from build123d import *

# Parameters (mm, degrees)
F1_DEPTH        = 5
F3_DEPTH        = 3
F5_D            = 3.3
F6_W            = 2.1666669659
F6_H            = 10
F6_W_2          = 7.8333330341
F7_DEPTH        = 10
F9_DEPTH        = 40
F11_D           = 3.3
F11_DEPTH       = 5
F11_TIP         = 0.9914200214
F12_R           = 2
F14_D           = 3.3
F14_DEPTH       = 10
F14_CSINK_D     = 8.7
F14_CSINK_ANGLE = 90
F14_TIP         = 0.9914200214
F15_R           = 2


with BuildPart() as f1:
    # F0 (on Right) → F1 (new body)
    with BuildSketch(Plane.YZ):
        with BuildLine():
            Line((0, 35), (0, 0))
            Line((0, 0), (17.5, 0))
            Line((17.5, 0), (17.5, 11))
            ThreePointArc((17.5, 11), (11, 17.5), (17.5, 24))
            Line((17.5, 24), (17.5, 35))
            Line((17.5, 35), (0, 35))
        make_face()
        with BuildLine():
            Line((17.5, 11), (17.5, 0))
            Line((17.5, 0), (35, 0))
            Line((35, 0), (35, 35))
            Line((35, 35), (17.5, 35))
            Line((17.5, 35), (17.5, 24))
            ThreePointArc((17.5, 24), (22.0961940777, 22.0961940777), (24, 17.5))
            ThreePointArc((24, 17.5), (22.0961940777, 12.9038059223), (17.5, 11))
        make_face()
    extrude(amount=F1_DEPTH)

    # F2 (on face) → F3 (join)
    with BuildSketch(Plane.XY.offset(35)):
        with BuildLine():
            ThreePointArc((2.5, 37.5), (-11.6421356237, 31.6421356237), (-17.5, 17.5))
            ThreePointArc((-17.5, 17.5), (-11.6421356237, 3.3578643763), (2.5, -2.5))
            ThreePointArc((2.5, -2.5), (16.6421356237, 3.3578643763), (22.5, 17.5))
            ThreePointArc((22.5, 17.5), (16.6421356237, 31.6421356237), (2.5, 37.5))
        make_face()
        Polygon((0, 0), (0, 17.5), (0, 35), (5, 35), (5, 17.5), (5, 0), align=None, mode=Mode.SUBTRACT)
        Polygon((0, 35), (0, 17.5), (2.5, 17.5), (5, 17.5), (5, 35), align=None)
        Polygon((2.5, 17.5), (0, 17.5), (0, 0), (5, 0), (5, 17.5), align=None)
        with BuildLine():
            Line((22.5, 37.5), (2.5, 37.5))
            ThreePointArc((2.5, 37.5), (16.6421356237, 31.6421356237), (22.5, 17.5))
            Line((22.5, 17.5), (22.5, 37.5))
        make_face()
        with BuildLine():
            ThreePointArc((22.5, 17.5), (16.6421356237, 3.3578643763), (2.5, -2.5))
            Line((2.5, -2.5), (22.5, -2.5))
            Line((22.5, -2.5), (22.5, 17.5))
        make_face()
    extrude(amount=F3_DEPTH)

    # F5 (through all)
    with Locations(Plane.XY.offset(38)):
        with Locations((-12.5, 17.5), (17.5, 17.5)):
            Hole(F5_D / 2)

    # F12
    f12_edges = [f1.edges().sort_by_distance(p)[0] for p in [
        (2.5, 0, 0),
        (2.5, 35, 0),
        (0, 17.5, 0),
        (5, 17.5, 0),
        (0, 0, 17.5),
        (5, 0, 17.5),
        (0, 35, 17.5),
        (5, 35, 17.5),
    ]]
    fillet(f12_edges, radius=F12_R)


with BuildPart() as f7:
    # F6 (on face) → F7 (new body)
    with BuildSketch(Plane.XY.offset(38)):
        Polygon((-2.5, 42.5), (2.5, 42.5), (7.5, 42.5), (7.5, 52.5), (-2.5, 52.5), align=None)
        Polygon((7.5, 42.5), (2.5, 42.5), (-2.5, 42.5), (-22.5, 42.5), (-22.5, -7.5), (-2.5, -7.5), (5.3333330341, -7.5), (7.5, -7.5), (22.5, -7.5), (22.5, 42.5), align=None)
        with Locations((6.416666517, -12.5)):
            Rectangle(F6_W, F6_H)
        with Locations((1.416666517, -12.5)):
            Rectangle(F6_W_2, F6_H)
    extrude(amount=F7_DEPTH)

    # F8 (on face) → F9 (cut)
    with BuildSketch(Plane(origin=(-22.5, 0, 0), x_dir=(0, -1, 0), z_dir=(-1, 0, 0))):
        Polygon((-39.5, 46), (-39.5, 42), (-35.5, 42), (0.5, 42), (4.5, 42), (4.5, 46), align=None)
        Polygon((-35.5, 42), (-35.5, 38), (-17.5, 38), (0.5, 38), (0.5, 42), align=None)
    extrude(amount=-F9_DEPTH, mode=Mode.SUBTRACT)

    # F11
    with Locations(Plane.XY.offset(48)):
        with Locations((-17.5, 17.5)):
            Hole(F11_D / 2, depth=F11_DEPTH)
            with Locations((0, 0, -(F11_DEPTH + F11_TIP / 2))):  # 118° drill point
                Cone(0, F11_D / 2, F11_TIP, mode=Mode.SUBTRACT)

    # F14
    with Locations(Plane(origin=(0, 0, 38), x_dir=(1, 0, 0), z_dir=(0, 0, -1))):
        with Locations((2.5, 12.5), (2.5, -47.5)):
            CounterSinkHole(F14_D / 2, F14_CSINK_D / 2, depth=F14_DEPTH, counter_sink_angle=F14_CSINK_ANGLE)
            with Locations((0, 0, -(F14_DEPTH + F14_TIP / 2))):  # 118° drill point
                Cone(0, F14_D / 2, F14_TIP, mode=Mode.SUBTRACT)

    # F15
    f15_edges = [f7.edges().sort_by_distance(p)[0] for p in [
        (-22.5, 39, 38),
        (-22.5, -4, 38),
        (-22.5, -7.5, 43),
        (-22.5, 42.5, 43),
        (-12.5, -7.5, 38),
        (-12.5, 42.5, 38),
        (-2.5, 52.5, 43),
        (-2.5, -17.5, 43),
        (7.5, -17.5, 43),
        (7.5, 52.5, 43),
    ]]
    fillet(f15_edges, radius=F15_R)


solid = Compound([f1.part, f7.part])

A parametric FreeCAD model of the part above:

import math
import FreeCAD as App
import Part
import Sketcher
Q = App.Units.Quantity


def edges_at(feature, points):
    """Names of the edges that pass closest to the given points."""
    edges = feature.Shape.Edges
    near = lambda p: min(range(len(edges)), key=lambda i: edges[i].distToShape(Part.Vertex(*p))[0])
    return sorted({f"Edge{near(p) + 1}" for p in points})

doc = App.newDocument("Part")
body = doc.addObject("PartDesign::Body", "Body")

# Sketch on YZ plane
sketch1 = body.newObject("Sketcher::SketchObject", "Sketch")
sketch1.AttachmentSupport = (doc.getObject("YZ_Plane"), [""])
sketch1.MapMode = "FlatFace"
sketch1.addGeometry(Part.LineSegment(App.Vector(0, 35, 0), App.Vector(0, 0, 0)), False)
sketch1.addGeometry(Part.LineSegment(App.Vector(0, 0, 0), App.Vector(35, 0, 0)), False)
sketch1.addGeometry(Part.LineSegment(App.Vector(35, 0, 0), App.Vector(35, 35, 0)), False)
sketch1.addGeometry(Part.LineSegment(App.Vector(35, 35, 0), App.Vector(0, 35, 0)), False)
sketch1.addGeometry(Part.ArcOfCircle(Part.Circle(App.Vector(18, 18, 0), App.Vector(0, 0, 1), 6), math.radians(90), math.radians(270)), False)
sketch1.addGeometry(Part.ArcOfCircle(Part.Circle(App.Vector(18, 18, 0), App.Vector(0, 0, 1), 6), math.radians(0), math.radians(90)), False)
sketch1.addGeometry(Part.ArcOfCircle(Part.Circle(App.Vector(18, 18, 0), App.Vector(0, 0, 1), 6), math.radians(-90), math.radians(0)), False)
sketch1.addConstraint(Sketcher.Constraint("Coincident", 0, 2, 1, 1))
sketch1.addConstraint(Sketcher.Constraint("Coincident", 1, 2, 2, 1))
sketch1.addConstraint(Sketcher.Constraint("Coincident", 2, 2, 3, 1))
sketch1.addConstraint(Sketcher.Constraint("Coincident", 3, 2, 0, 1))
sketch1.addConstraint(Sketcher.Constraint("Tangent", 4, 1, 5, 2))
sketch1.addConstraint(Sketcher.Constraint("Tangent", 5, 1, 6, 2))
sketch1.addConstraint(Sketcher.Constraint("Tangent", 6, 1, 4, 2))
sketch1.addConstraint(Sketcher.Constraint("Vertical", 0))
sketch1.addConstraint(Sketcher.Constraint("Horizontal", 1))
sketch1.addConstraint(Sketcher.Constraint("Vertical", 2))
sketch1.addConstraint(Sketcher.Constraint("Horizontal", 3))
sketch1.addConstraint(Sketcher.Constraint("Coincident", 0, 2, -1, 1))
sketch1.addConstraint(Sketcher.Constraint("Horizontal", 6, 3, 5, 1))
sketch1.addConstraint(Sketcher.Constraint("Vertical", 6, 3, 4, 1))
sketch1.addConstraint(Sketcher.Constraint("Vertical", 4, 1, 6, 1))
sketch1.addConstraint(Sketcher.Constraint("Equal", 3, 0))
sketch1.addConstraint(Sketcher.Constraint("Radius", 4, Q("6.5 mm")))
sketch1.addConstraint(Sketcher.Constraint("DistanceX", 1, 1, 1, 2, Q("35 mm")))
sketch1.addConstraint(Sketcher.Constraint("DistanceY", -1, 1, 4, 1, Q("24 mm")))
sketch1.addConstraint(Sketcher.Constraint("DistanceX", -1, 1, 5, 1, Q("24 mm")))
pad1 = body.newObject("PartDesign::Pad", "Pad")
pad1.Profile = sketch1
pad1.Length = 5

# Sketch on XY plane
sketch2 = body.newObject("Sketcher::SketchObject", "Sketch001")
sketch2.AttachmentSupport = (doc.getObject("XY_Plane"), [""])
sketch2.MapMode = "FlatFace"
sketch2.AttachmentOffset = App.Placement(App.Vector(0, 0, 35), App.Rotation())
sketch2.addGeometry(Part.ArcOfCircle(Part.Circle(App.Vector(2, 18, 0), App.Vector(0, 0, 1), 20), math.radians(90), math.radians(180)), False)
sketch2.addGeometry(Part.ArcOfCircle(Part.Circle(App.Vector(2, 18, 0), App.Vector(0, 0, 1), 20), math.radians(180), math.radians(270)), False)
sketch2.addGeometry(Part.LineSegment(App.Vector(2, -2, 0), App.Vector(22, -2, 0)), False)
sketch2.addGeometry(Part.LineSegment(App.Vector(22, -2, 0), App.Vector(22, 38, 0)), False)
sketch2.addGeometry(Part.LineSegment(App.Vector(22, 38, 0), App.Vector(2, 38, 0)), False)
sketch2.addConstraint(Sketcher.Constraint("Tangent", 0, 2, 1, 1))
sketch2.addConstraint(Sketcher.Constraint("Tangent", 1, 2, 2, 1))
sketch2.addConstraint(Sketcher.Constraint("Coincident", 2, 2, 3, 1))
sketch2.addConstraint(Sketcher.Constraint("Coincident", 3, 2, 4, 1))
sketch2.addConstraint(Sketcher.Constraint("Tangent", 4, 2, 0, 1))
sketch2.addConstraint(Sketcher.Constraint("Horizontal", 2))
sketch2.addConstraint(Sketcher.Constraint("Vertical", 3))
sketch2.addConstraint(Sketcher.Constraint("Horizontal", 4))
sketch2.addConstraint(Sketcher.Constraint("Equal", 0, 1))
sketch2.addConstraint(Sketcher.Constraint("Horizontal", 1, 3, 0, 2))
sketch2.addConstraint(Sketcher.Constraint("Radius", 0, Q("20 mm")))
sketch2.addConstraint(Sketcher.Constraint("DistanceX", 2, 1, 2, 2, Q("20 mm")))
sketch2.addConstraint(Sketcher.Constraint("DistanceX", -1, 1, 0, 3, Q("2.5 mm")))
sketch2.addConstraint(Sketcher.Constraint("DistanceY", -1, 1, 0, 3, Q("17.5 mm")))
pad2 = body.newObject("PartDesign::Pad", "Pad001")
pad2.Profile = sketch2
pad2.Length = 3

# Sketch on XY plane
sketch3 = body.newObject("Sketcher::SketchObject", "Sketch002")
sketch3.AttachmentSupport = (doc.getObject("XY_Plane"), [""])
sketch3.MapMode = "FlatFace"
sketch3.AttachmentOffset = App.Placement(App.Vector(0, 0, 38), App.Rotation())
sketch3.addGeometry(Part.Circle(App.Vector(-12.5, 17.5, 0), App.Vector(0, 0, 1), 1.6), False)
sketch3.addGeometry(Part.Circle(App.Vector(17.5, 17.5, 0), App.Vector(0, 0, 1), 1.6), False)
sketch3.addConstraint(Sketcher.Constraint("Equal", 0, 1))
sketch3.addConstraint(Sketcher.Constraint("Horizontal", 0, 3, 1, 3))
sketch3.addConstraint(Sketcher.Constraint("Diameter", 0, Q("3.3 mm")))
sketch3.addConstraint(Sketcher.Constraint("DistanceX", 0, 3, 1, 3, Q("30 mm")))
sketch3.addConstraint(Sketcher.Constraint("DistanceX", 0, 3, -1, 1, Q("12.5 mm")))
sketch3.addConstraint(Sketcher.Constraint("DistanceY", -1, 1, 0, 3, Q("17.5 mm")))
doc.recompute()
hole = body.newObject("PartDesign::Hole", "Hole")
hole.Profile = sketch3
hole.ThreadType = "None"
hole.Diameter = 3.3
hole.DepthType = "ThroughAll"
doc.recompute()

fillet = body.newObject("PartDesign::Fillet", "Fillet")
fillet.Base = (hole, edges_at(hole, [
    (2.5, 0, 0),
    (2.5, 35, 0),
    (0, 17.5, 0),
    (5, 17.5, 0),
    (0, 0, 17.5),
    (5, 0, 17.5),
    (0, 35, 17.5),
    (5, 35, 17.5),
]))
fillet.Radius = 2
body2 = doc.addObject("PartDesign::Body", "Body001")

# Sketch on XY plane
sketch4 = body2.newObject("Sketcher::SketchObject", "Sketch003")
sketch4.AttachmentSupport = (doc.getObject("XY_Plane001"), [""])
sketch4.MapMode = "FlatFace"
sketch4.AttachmentOffset = App.Placement(App.Vector(0, 0, 38), App.Rotation())
sketch4.addGeometry(Part.LineSegment(App.Vector(8, 42, 0), App.Vector(8, 52, 0)), False)
sketch4.addGeometry(Part.LineSegment(App.Vector(8, 52, 0), App.Vector(-2, 52, 0)), False)
sketch4.addGeometry(Part.LineSegment(App.Vector(-2, 52, 0), App.Vector(-2, 42, 0)), False)
sketch4.addGeometry(Part.LineSegment(App.Vector(-2, 42, 0), App.Vector(-22, 42, 0)), False)
sketch4.addGeometry(Part.LineSegment(App.Vector(-22, 42, 0), App.Vector(-22, -8, 0)), False)
sketch4.addGeometry(Part.LineSegment(App.Vector(-22, -8, 0), App.Vector(-2, -8, 0)), False)
sketch4.addGeometry(Part.LineSegment(App.Vector(-2, -8, 0), App.Vector(-2, -18, 0)), False)
sketch4.addGeometry(Part.LineSegment(App.Vector(-2, -18, 0), App.Vector(8, -18, 0)), False)
sketch4.addGeometry(Part.LineSegment(App.Vector(8, -18, 0), App.Vector(8, -8, 0)), False)
sketch4.addGeometry(Part.LineSegment(App.Vector(8, -8, 0), App.Vector(22, -8, 0)), False)
sketch4.addGeometry(Part.LineSegment(App.Vector(22, -8, 0), App.Vector(22, 42, 0)), False)
sketch4.addGeometry(Part.LineSegment(App.Vector(22, 42, 0), App.Vector(8, 42, 0)), False)
sketch4.addConstraint(Sketcher.Constraint("Coincident", 0, 2, 1, 1))
sketch4.addConstraint(Sketcher.Constraint("Coincident", 1, 2, 2, 1))
sketch4.addConstraint(Sketcher.Constraint("Coincident", 2, 2, 3, 1))
sketch4.addConstraint(Sketcher.Constraint("Coincident", 3, 2, 4, 1))
sketch4.addConstraint(Sketcher.Constraint("Coincident", 4, 2, 5, 1))
sketch4.addConstraint(Sketcher.Constraint("Coincident", 5, 2, 6, 1))
sketch4.addConstraint(Sketcher.Constraint("Coincident", 6, 2, 7, 1))
sketch4.addConstraint(Sketcher.Constraint("Coincident", 7, 2, 8, 1))
sketch4.addConstraint(Sketcher.Constraint("Coincident", 8, 2, 9, 1))
sketch4.addConstraint(Sketcher.Constraint("Coincident", 9, 2, 10, 1))
sketch4.addConstraint(Sketcher.Constraint("Coincident", 10, 2, 11, 1))
sketch4.addConstraint(Sketcher.Constraint("Coincident", 11, 2, 0, 1))
sketch4.addConstraint(Sketcher.Constraint("Vertical", 0))
sketch4.addConstraint(Sketcher.Constraint("Horizontal", 1))
sketch4.addConstraint(Sketcher.Constraint("Vertical", 2))
sketch4.addConstraint(Sketcher.Constraint("Horizontal", 3))
sketch4.addConstraint(Sketcher.Constraint("Vertical", 4))
sketch4.addConstraint(Sketcher.Constraint("Horizontal", 5))
sketch4.addConstraint(Sketcher.Constraint("Vertical", 6))
sketch4.addConstraint(Sketcher.Constraint("Horizontal", 7))
sketch4.addConstraint(Sketcher.Constraint("Vertical", 8))
sketch4.addConstraint(Sketcher.Constraint("Horizontal", 9))
sketch4.addConstraint(Sketcher.Constraint("Vertical", 10))
sketch4.addConstraint(Sketcher.Constraint("Horizontal", 11))
sketch4.addConstraint(Sketcher.Constraint("Symmetric", 4, 2, 9, 2, -2))
sketch4.addConstraint(Sketcher.Constraint("Horizontal", 3, 2, 10, 2))
sketch4.addConstraint(Sketcher.Constraint("Vertical", 2, 2, 5, 2))
sketch4.addConstraint(Sketcher.Constraint("Vertical", 0, 2, 7, 2))
sketch4.addConstraint(Sketcher.Constraint("Equal", 7, 0))
sketch4.addConstraint(Sketcher.Constraint("Equal", 2, 6))
sketch4.addConstraint(Sketcher.Constraint("DistanceX", 1, 2, 1, 1, Q("10 mm")))
sketch4.addConstraint(Sketcher.Constraint("DistanceX", 3, 2, 3, 1, Q("20 mm")))
sketch4.addConstraint(Sketcher.Constraint("DistanceX", 9, 1, 9, 2, Q("15 mm")))
sketch4.addConstraint(Sketcher.Constraint("DistanceY", 4, 2, 4, 1, Q("50 mm")))
sketch4.addConstraint(Sketcher.Constraint("DistanceY", -1, 1, 0, 2, Q("52.5 mm")))
pad3 = body2.newObject("PartDesign::Pad", "Pad002")
pad3.Profile = sketch4
pad3.Length = 10

# Sketch on YZ plane
sketch5 = body2.newObject("Sketcher::SketchObject", "Sketch004")
sketch5.AttachmentSupport = (doc.getObject("YZ_Plane001"), [""])
sketch5.MapMode = "FlatFace"
sketch5.AttachmentOffset = App.Placement(App.Vector(0, 0, -22.5), App.Rotation())
sketch5.addGeometry(Part.LineSegment(App.Vector(39.5, 46, 0), App.Vector(39.5, 42, 0)), False)
sketch5.addGeometry(Part.LineSegment(App.Vector(39.5, 42, 0), App.Vector(35.5, 42, 0)), False)
sketch5.addGeometry(Part.LineSegment(App.Vector(35.5, 42, 0), App.Vector(35.5, 38, 0)), False)
sketch5.addGeometry(Part.LineSegment(App.Vector(35.5, 38, 0), App.Vector(-0.5, 38, 0)), False)
sketch5.addGeometry(Part.LineSegment(App.Vector(-0.5, 38, 0), App.Vector(-0.5, 42, 0)), False)
sketch5.addGeometry(Part.LineSegment(App.Vector(-0.5, 42, 0), App.Vector(-4.5, 42, 0)), False)
sketch5.addGeometry(Part.LineSegment(App.Vector(-4.5, 42, 0), App.Vector(-4.5, 46, 0)), False)
sketch5.addGeometry(Part.LineSegment(App.Vector(-4.5, 46, 0), App.Vector(39.5, 46, 0)), False)
sketch5.addConstraint(Sketcher.Constraint("Coincident", 0, 2, 1, 1))
sketch5.addConstraint(Sketcher.Constraint("Coincident", 1, 2, 2, 1))
sketch5.addConstraint(Sketcher.Constraint("Coincident", 2, 2, 3, 1))
sketch5.addConstraint(Sketcher.Constraint("Coincident", 3, 2, 4, 1))
sketch5.addConstraint(Sketcher.Constraint("Coincident", 4, 2, 5, 1))
sketch5.addConstraint(Sketcher.Constraint("Coincident", 5, 2, 6, 1))
sketch5.addConstraint(Sketcher.Constraint("Coincident", 6, 2, 7, 1))
sketch5.addConstraint(Sketcher.Constraint("Coincident", 7, 2, 0, 1))
sketch5.addConstraint(Sketcher.Constraint("Vertical", 0))
sketch5.addConstraint(Sketcher.Constraint("Horizontal", 1))
sketch5.addConstraint(Sketcher.Constraint("Vertical", 2))
sketch5.addConstraint(Sketcher.Constraint("Horizontal", 3))
sketch5.addConstraint(Sketcher.Constraint("Vertical", 4))
sketch5.addConstraint(Sketcher.Constraint("Horizontal", 5))
sketch5.addConstraint(Sketcher.Constraint("Vertical", 6))
sketch5.addConstraint(Sketcher.Constraint("Horizontal", 7))
sketch5.addConstraint(Sketcher.Constraint("Horizontal", 1, 2, 4, 2))
sketch5.addConstraint(Sketcher.Constraint("Equal", 1, 5))
sketch5.addConstraint(Sketcher.Constraint("Equal", 5, 0))
sketch5.addConstraint(Sketcher.Constraint("Equal", 0, 2))
sketch5.addConstraint(Sketcher.Constraint("DistanceX", 1, 2, 1, 1, Q("4 mm")))
sketch5.addConstraint(Sketcher.Constraint("DistanceX", 3, 2, 3, 1, Q("36 mm")))
sketch5.addConstraint(Sketcher.Constraint("DistanceY", -1, 1, 0, 2, Q("42 mm")))
sketch5.addConstraint(Sketcher.Constraint("DistanceX", -1, 1, 0, 2, Q("39.5 mm")))
pocket1 = body2.newObject("PartDesign::Pocket", "Pocket")
pocket1.Profile = sketch5
pocket1.Length = 40
pocket1.Reversed = True

# Sketch on XY plane
sketch6 = body2.newObject("Sketcher::SketchObject", "Sketch005")
sketch6.AttachmentSupport = (doc.getObject("XY_Plane001"), [""])
sketch6.MapMode = "FlatFace"
sketch6.AttachmentOffset = App.Placement(App.Vector(0, 0, 48), App.Rotation())
sketch6.addGeometry(Part.Circle(App.Vector(-17.5, 17.5, 0), App.Vector(0, 0, 1), 1.6), False)
sketch6.addConstraint(Sketcher.Constraint("Diameter", 0, Q("3.3 mm")))
sketch6.addConstraint(Sketcher.Constraint("DistanceX", 0, 3, -1, 1, Q("17.5 mm")))
sketch6.addConstraint(Sketcher.Constraint("DistanceY", -1, 1, 0, 3, Q("17.5 mm")))
doc.recompute()
hole2 = body2.newObject("PartDesign::Hole", "Hole001")
hole2.Profile = sketch6
hole2.ThreadType = "None"
hole2.Diameter = 3.3
hole2.DepthType = "Dimension"
hole2.Depth = 5
hole2.DrillPoint = "Angled"
hole2.DrillPointAngle = 118

# Sketch on XY plane
sketch7 = body2.newObject("Sketcher::SketchObject", "Sketch006")
sketch7.AttachmentSupport = (doc.getObject("XY_Plane001"), [""])
sketch7.MapMode = "FlatFace"
sketch7.AttachmentOffset = App.Placement(App.Vector(0, 0, 38), App.Rotation())
sketch7.addGeometry(Part.Circle(App.Vector(2.5, -12.5, 0), App.Vector(0, 0, 1), 1.6), False)
sketch7.addGeometry(Part.Circle(App.Vector(2.5, 47.5, 0), App.Vector(0, 0, 1), 1.6), False)
sketch7.addConstraint(Sketcher.Constraint("Equal", 0, 1))
sketch7.addConstraint(Sketcher.Constraint("Vertical", 0, 3, 1, 3))
sketch7.addConstraint(Sketcher.Constraint("Diameter", 0, Q("3.3 mm")))
sketch7.addConstraint(Sketcher.Constraint("DistanceY", 0, 3, 1, 3, Q("60 mm")))
sketch7.addConstraint(Sketcher.Constraint("DistanceX", -1, 1, 0, 3, Q("2.5 mm")))
sketch7.addConstraint(Sketcher.Constraint("DistanceY", 0, 3, -1, 1, Q("12.5 mm")))
doc.recompute()
hole3 = body2.newObject("PartDesign::Hole", "Hole002")
hole3.Profile = sketch7
hole3.ThreadType = "None"
hole3.Diameter = 3.3
hole3.DepthType = "Dimension"
hole3.Depth = 10
hole3.DrillPoint = "Angled"
hole3.DrillPointAngle = 118
hole3.HoleCutType = "Countersink"
hole3.HoleCutDiameter = 8.7
hole3.HoleCutCountersinkAngle = 90
hole3.Reversed = True
doc.recompute()

fillet2 = body2.newObject("PartDesign::Fillet", "Fillet001")
fillet2.Base = (hole3, edges_at(hole3, [
    (-22.5, 39, 38),
    (-22.5, -4, 38),
    (-22.5, -7.5, 43),
    (-22.5, 42.5, 43),
    (-12.5, -7.5, 38),
    (-12.5, 42.5, 38),
    (-2.5, 52.5, 43),
    (-2.5, -17.5, 43),
    (7.5, -17.5, 43),
    (7.5, 52.5, 43),
]))
fillet2.Radius = 2

doc.recompute()
